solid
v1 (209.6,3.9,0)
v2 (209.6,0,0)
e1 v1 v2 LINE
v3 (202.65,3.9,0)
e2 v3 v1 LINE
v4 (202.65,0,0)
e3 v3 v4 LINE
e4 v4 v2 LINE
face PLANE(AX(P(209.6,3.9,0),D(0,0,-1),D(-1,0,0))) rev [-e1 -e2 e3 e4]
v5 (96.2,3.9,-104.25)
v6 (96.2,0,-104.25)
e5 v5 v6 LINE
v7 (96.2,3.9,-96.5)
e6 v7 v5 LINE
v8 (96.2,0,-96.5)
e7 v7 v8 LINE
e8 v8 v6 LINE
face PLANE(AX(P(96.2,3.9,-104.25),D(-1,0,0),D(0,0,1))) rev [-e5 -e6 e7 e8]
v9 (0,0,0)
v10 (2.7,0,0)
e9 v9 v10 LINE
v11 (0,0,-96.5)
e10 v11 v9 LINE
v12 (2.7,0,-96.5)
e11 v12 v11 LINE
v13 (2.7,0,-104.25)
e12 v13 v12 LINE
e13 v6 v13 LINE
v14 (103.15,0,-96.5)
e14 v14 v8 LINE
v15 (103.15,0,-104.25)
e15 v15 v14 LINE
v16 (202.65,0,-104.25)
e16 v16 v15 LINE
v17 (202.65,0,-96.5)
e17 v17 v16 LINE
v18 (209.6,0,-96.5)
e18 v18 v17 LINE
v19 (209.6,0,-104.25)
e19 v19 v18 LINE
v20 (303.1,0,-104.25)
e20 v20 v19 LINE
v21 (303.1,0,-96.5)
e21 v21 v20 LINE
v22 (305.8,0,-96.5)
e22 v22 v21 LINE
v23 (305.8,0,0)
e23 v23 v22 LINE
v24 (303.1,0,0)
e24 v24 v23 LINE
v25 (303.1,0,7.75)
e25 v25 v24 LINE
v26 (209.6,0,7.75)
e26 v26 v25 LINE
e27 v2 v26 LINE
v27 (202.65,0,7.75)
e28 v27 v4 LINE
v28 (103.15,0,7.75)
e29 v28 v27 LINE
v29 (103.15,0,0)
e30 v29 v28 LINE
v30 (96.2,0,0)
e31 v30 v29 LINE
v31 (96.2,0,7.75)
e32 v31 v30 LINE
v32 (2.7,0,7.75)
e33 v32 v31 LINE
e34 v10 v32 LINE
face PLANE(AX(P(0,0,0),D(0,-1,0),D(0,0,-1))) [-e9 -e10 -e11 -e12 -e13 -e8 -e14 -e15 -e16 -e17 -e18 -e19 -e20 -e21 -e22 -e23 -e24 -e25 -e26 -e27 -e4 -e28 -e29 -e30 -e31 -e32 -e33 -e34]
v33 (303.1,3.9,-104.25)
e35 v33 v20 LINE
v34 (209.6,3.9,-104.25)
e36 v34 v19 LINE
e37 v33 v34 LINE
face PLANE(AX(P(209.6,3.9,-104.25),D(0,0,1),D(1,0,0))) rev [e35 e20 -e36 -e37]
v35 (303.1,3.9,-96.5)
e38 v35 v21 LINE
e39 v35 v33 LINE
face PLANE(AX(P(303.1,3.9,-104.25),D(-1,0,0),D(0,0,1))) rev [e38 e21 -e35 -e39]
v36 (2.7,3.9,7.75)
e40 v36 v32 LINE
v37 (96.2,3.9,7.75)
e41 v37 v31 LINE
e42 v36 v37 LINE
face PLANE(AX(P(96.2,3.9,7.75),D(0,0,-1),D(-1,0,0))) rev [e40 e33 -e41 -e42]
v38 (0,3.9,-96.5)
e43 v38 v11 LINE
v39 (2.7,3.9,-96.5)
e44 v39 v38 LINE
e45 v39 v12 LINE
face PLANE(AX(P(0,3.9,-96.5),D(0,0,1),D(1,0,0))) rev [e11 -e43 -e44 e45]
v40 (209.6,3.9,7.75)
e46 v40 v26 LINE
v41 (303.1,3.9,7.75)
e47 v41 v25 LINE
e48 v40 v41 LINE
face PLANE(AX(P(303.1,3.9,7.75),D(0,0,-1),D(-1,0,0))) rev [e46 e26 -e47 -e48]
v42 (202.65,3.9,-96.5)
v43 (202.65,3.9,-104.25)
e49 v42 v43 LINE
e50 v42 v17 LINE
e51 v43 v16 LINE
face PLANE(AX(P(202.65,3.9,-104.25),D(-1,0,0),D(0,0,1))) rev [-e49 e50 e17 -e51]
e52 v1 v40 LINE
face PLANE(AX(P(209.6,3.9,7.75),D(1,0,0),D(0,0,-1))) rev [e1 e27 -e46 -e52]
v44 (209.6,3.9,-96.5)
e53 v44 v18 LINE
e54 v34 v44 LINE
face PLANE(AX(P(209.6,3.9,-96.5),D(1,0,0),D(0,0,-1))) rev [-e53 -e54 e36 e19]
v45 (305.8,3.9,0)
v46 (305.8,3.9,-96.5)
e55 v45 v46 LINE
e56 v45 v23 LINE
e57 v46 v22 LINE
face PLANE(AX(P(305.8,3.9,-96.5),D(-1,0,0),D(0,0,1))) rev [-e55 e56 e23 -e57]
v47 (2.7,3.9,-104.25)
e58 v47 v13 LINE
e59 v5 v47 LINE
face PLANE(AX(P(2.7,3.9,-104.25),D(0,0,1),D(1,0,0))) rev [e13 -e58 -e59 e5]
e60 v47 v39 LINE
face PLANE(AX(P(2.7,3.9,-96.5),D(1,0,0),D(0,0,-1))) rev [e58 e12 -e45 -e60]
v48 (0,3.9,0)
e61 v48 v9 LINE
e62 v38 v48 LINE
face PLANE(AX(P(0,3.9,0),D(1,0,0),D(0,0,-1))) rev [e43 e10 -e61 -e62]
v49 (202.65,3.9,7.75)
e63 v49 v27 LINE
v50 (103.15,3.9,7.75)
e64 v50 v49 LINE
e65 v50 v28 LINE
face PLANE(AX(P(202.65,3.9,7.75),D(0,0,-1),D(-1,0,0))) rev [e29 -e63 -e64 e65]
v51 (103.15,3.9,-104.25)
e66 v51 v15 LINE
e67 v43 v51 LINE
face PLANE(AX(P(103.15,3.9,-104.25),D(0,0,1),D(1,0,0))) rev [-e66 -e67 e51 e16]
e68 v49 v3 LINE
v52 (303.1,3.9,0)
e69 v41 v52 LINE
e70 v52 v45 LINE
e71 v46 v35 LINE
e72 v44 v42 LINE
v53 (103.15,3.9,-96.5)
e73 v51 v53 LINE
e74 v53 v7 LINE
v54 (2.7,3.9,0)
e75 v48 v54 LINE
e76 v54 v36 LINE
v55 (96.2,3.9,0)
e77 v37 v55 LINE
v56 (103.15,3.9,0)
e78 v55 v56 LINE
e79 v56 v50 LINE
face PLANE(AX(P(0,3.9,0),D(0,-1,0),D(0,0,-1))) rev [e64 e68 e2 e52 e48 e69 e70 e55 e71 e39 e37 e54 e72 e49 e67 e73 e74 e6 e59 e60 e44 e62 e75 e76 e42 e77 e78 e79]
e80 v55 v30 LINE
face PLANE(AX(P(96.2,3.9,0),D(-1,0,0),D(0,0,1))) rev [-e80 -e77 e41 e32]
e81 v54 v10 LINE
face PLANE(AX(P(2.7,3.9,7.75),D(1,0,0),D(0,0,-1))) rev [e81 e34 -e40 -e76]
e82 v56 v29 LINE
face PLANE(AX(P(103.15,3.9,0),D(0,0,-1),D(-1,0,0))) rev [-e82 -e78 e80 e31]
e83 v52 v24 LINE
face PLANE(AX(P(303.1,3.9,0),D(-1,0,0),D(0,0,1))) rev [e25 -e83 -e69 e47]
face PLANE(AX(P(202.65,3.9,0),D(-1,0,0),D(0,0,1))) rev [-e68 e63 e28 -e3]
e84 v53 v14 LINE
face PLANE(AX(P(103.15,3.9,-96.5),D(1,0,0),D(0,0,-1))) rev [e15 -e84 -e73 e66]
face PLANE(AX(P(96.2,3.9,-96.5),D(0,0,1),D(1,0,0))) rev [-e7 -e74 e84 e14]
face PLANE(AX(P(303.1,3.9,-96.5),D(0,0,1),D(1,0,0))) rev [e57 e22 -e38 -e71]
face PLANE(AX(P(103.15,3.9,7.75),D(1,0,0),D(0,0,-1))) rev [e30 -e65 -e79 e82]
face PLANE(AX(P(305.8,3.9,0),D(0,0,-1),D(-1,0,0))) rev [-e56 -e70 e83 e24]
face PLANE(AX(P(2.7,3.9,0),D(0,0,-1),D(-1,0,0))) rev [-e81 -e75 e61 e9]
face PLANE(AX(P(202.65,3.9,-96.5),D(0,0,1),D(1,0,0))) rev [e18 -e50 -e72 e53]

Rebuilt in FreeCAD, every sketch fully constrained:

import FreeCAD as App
import Part
import Sketcher

V = App.Vector
Q = App.Units.Quantity


def add_polygon(sketch, points):
    """Adds a closed chain of lines whose ends are joined by coincident constraints."""
    first, n = sketch.GeometryCount, len(points)
    for a, b in zip(points, points[1:] + points[:1]):
        sketch.addGeometry(Part.LineSegment(App.Vector(*a, 0), App.Vector(*b, 0)), False)
    for i in range(n):
        sketch.addConstraint(Sketcher.Constraint("Coincident", first + i, 2, first + (i + 1) % n, 1))

doc = App.newDocument("Part")
body = doc.addObject("PartDesign::Body", "Body")

sketch1 = doc.addObject("Sketcher::SketchObject", "Sketch")
body.addObject(sketch1)
sketch1.AttachmentSupport = (doc.XZ_Plane, [""])
sketch1.MapMode = "FlatFace"
add_polygon(sketch1, [(0, -96.5), (0, 0), (2.7, 0), (2.7, 7.75), (96.2, 7.75), (96.2, 0), (103.15, 0), (103.15, 7.75), (202.65, 7.75), (202.65, 0), (209.6, 0), (209.6, 7.75), (303.1, 7.75), (303.1, 0), (305.8, 0), (305.8, -96.5), (303.1, -96.5), (303.1, -104.25), (209.6, -104.25), (209.6, -96.5), (202.65, -96.5), (202.65, -104.25), (103.15, -104.25), (103.15, -96.5), (96.2, -96.5), (96.2, -104.25), (2.7, -104.25), (2.7, -96.5)])
sketch1.addConstraint([
    Sketcher.Constraint("Vertical", 0),
    Sketcher.Constraint("Horizontal", 1),
    Sketcher.Constraint("Vertical", 2),
    Sketcher.Constraint("Horizontal", 3),
    Sketcher.Constraint("Vertical", 4),
    Sketcher.Constraint("Horizontal", 5),
    Sketcher.Constraint("Vertical", 6),
    Sketcher.Constraint("Horizontal", 7),
    Sketcher.Constraint("Vertical", 8),
    Sketcher.Constraint("Horizontal", 9),
    Sketcher.Constraint("Vertical", 10),
    Sketcher.Constraint("Horizontal", 11),
    Sketcher.Constraint("Vertical", 12),
    Sketcher.Constraint("Horizontal", 13),
    Sketcher.Constraint("Vertical", 14),
    Sketcher.Constraint("Horizontal", 15),
    Sketcher.Constraint("Vertical", 16),
    Sketcher.Constraint("Horizontal", 17),
    Sketcher.Constraint("Vertical", 18),
    Sketcher.Constraint("Horizontal", 19),
    Sketcher.Constraint("Vertical", 20),
    Sketcher.Constraint("Horizontal", 21),
    Sketcher.Constraint("Vertical", 22),
    Sketcher.Constraint("Horizontal", 23),
    Sketcher.Constraint("Vertical", 24),
    Sketcher.Constraint("Horizontal", 25),
    Sketcher.Constraint("Vertical", 26),
    Sketcher.Constraint("Horizontal", 27),
    Sketcher.Constraint("Coincident", 0, 2, -1, 1),
    Sketcher.Constraint("PointOnObject", 4, 2, -1),
    Sketcher.Constraint("PointOnObject", 8, 2, -1),
    Sketcher.Constraint("PointOnObject", 12, 2, -1),
    Sketcher.Constraint("Horizontal", 3, 2, 6, 2),
    Sketcher.Constraint("Horizontal", 7, 2, 10, 2),
    Sketcher.Constraint("Horizontal", 15, 2, 18, 2),
    Sketcher.Constraint("Horizontal", 17, 2, 20, 2),
    Sketcher.Constraint("Horizontal", 19, 2, 22, 2),
    Sketcher.Constraint("Horizontal", 21, 2, 24, 2),
    Sketcher.Constraint("Horizontal", 23, 2, 26, 2),
    Sketcher.Constraint("Vertical", 12, 2, 15, 2),
    Sketcher.Constraint("Vertical", 10, 2, 17, 2),
    Sketcher.Constraint("Vertical", 8, 2, 19, 2),
    Sketcher.Constraint("Vertical", 6, 2, 21, 2),
    Sketcher.Constraint("Vertical", 4, 2, 23, 2),
    Sketcher.Constraint("Vertical", 2, 2, 25, 2),
    Sketcher.Constraint("Equal", 5, 9),
    Sketcher.Constraint("Equal", 3, 11),
    Sketcher.Constraint("Equal", 1, 13),
    Sketcher.Constraint("Equal", 12, 16),
    Sketcher.Constraint("DistanceX", 1, 1, 1, 2, Q("2.7 mm")),
    Sketcher.Constraint("DistanceX", 3, 1, 3, 2, Q("93.5 mm")),
    Sketcher.Constraint("DistanceX", 7, 1, 7, 2, Q("99.5 mm")),
    Sketcher.Constraint("DistanceY", 0, 1, 0, 2, Q("96.5 mm")),
    Sketcher.Constraint("DistanceY", 16, 2, 11, 2, Q("112 mm")),
    Sketcher.Constraint("DistanceX", 5, 1, 5, 2, Q("6.95 mm")),
])
pad1 = doc.addObject("PartDesign::Pad", "Pad")
body.addObject(pad1)
pad1.Profile = sketch1
pad1.Length = 3.9
pad1.Reversed = True

doc.recompute()
